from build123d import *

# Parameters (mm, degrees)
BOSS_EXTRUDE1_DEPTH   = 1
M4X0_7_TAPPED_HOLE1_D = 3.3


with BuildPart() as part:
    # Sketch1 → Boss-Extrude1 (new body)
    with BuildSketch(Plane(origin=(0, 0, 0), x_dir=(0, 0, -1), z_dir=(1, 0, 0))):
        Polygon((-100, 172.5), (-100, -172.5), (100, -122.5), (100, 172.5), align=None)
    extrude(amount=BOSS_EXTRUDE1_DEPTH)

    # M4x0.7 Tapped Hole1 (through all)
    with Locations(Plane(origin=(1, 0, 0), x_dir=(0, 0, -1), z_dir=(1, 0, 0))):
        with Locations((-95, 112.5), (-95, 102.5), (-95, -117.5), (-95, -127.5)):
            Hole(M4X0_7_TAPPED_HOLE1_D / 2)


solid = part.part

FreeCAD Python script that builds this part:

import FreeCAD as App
import Part
import Sketcher

V = App.Vector


def add_polygon(sketch, points):
    """Adds a closed chain of lines whose ends are joined by coincident constraints."""
    first, n = sketch.GeometryCount, len(points)
    for a, b in zip(points, points[1:] + points[:1]):
        sketch.addGeometry(Part.LineSegment(App.Vector(*a, 0), App.Vector(*b, 0)), False)
    for i in range(n):
        sketch.addConstraint(Sketcher.Constraint("Coincident", first + i, 2, first + (i + 1) % n, 1))

doc = App.newDocument("Part")
body = doc.addObject("PartDesign::Body", "Body")

# Sketch on YZ plane
sketch1 = body.newObject("Sketcher::SketchObject", "Sketch")
sketch1.AttachmentSupport = (doc.getObject("YZ_Plane"), [""])
sketch1.MapMode = "FlatFace"
add_polygon(sketch1, [(172, 100), (-172, 100), (-122, -100), (172, -100)])  # lines 0-3
sketch1.addConstraint(Sketcher.Constraint("Horizontal", 0))
sketch1.addConstraint(Sketcher.Constraint("Horizontal", 2))
sketch1.addConstraint(Sketcher.Constraint("Vertical", 3))
sketch1.addConstraint(Sketcher.Constraint("Symmetric", 0, 2, 2, 2, -1, 1))
sketch1.addConstraint(Sketcher.Constraint("DistanceX", 0, 2, 0, 1, 345.0))
sketch1.addConstraint(Sketcher.Constraint("DistanceX", 2, 1, 2, 2, 295.0))
sketch1.addConstraint(Sketcher.Constraint("DistanceY", 3, 1, 3, 2, 200.0))
pad1 = body.newObject("PartDesign::Pad", "Pad")
pad1.Profile = sketch1
pad1.Length = 1

# Sketch on YZ plane
sketch2 = body.newObject("Sketcher::SketchObject", "Sketch001")
sketch2.AttachmentSupport = (doc.getObject("YZ_Plane"), [""])
sketch2.MapMode = "FlatFace"
sketch2.AttachmentOffset = App.Placement(V(0, 0, 1), App.Rotation())
sketch2.addGeometry(Part.Circle(V(112.5, 95, 0), V(0, 0, 1), 1.6), False)
sketch2.addGeometry(Part.Circle(V(102.5, 95, 0), V(0, 0, 1), 1.6), False)
sketch2.addGeometry(Part.Circle(V(-117.5, 95, 0), V(0, 0, 1), 1.6), False)
sketch2.addGeometry(Part.Circle(V(-127.5, 95, 0), V(0, 0, 1), 1.6), False)
sketch2.addConstraint(Sketcher.Constraint("Equal", 0, 1))
sketch2.addConstraint(Sketcher.Constraint("Equal", 1, 2))
sketch2.addConstraint(Sketcher.Constraint("Equal", 2, 3))
sketch2.addConstraint(Sketcher.Constraint("Horizontal", 0, 3, 1, 3))
sketch2.addConstraint(Sketcher.Constraint("Horizontal", 1, 3, 2, 3))
sketch2.addConstraint(Sketcher.Constraint("Horizontal", 2, 3, 3, 3))
sketch2.addConstraint(Sketcher.Constraint("Diameter", 0, 3.3))
sketch2.addConstraint(Sketcher.Constraint("DistanceY", -1, 1, 0, 3, 95.0))
sketch2.addConstraint(Sketcher.Constraint("DistanceX", 1, 3, 0, 3, 10.0))
sketch2.addConstraint(Sketcher.Constraint("DistanceX", 2, 3, 1, 3, 220.0))
sketch2.addConstraint(Sketcher.Constraint("DistanceX", 3, 3, 2, 3, 10.0))
sketch2.addConstraint(Sketcher.Constraint("DistanceX", -1, 1, 0, 3, 112.5))
doc.recompute()
hole = body.newObject("PartDesign::Hole", "Hole")
hole.Profile = sketch2
hole.ThreadType = "None"
hole.Diameter = 3.3
hole.DepthType = "ThroughAll"

doc.recompute()
